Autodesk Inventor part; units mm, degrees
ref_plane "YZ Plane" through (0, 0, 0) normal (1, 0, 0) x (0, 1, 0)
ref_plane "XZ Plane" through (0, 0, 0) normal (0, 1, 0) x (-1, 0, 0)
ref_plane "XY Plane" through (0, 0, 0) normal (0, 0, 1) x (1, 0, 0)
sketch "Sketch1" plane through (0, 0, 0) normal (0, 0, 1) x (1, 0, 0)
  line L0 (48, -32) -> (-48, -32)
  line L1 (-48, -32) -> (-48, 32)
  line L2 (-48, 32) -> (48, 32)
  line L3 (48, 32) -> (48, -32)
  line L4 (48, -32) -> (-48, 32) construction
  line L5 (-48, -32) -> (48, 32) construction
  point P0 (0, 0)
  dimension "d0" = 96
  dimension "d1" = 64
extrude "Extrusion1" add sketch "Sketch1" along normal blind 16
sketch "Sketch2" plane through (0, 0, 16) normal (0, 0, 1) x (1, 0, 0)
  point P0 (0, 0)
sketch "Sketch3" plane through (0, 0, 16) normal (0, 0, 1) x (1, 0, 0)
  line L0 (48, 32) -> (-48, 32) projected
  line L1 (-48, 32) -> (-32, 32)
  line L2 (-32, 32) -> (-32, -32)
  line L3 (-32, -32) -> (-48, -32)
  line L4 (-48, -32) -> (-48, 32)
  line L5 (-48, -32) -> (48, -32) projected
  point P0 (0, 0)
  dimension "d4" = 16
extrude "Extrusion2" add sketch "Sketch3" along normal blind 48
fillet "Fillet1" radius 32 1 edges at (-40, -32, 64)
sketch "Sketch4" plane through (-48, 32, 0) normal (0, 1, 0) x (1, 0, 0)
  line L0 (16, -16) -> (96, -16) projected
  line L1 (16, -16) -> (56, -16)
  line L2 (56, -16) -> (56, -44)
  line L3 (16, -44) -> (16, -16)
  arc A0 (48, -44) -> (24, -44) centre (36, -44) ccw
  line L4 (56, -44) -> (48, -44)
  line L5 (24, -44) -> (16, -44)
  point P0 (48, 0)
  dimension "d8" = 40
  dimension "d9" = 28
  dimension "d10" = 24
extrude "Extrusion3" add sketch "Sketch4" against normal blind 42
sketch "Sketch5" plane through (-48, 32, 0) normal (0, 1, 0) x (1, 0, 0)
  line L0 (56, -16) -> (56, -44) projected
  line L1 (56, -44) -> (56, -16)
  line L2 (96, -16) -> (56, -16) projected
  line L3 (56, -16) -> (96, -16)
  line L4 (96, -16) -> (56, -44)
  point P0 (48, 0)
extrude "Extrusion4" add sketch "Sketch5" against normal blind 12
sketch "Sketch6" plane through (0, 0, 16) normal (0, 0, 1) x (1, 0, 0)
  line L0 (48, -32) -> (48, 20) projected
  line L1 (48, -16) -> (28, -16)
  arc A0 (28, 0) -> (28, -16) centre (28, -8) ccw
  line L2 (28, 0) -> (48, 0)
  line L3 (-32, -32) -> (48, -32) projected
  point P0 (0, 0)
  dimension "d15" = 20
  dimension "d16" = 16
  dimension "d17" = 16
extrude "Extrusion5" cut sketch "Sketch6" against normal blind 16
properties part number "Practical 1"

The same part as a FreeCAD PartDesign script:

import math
import FreeCAD as App
import Part
import Sketcher
from FreeCAD import Vector
Q = App.Units.Quantity


def edges_at(feature, points):
    """Names of the edges that pass closest to the given points."""
    edges = feature.Shape.Edges
    near = lambda p: min(range(len(edges)), key=lambda i: edges[i].distToShape(Part.Vertex(*p))[0])
    return sorted({f"Edge{near(p) + 1}" for p in points})


def add_polygon(sketch, points):
    """Adds a closed chain of lines whose ends are joined by coincident constraints."""
    first, n = sketch.GeometryCount, len(points)
    for a, b in zip(points, points[1:] + points[:1]):
        sketch.addGeometry(Part.LineSegment(App.Vector(*a, 0), App.Vector(*b, 0)), False)
    for i in range(n):
        sketch.addConstraint(Sketcher.Constraint("Coincident", first + i, 2, first + (i + 1) % n, 1))

doc = App.newDocument("Part")
body = doc.addObject("PartDesign::Body", "Body")

# Sketch on XY plane
sketch1 = body.newObject("Sketcher::SketchObject", "Sketch")
sketch1.AttachmentSupport = (doc.getObject("XY_Plane"), [""])
sketch1.MapMode = "FlatFace"
add_polygon(sketch1, [(-48, -32), (48, -32), (48, 32), (-48, 32)])  # lines 0-3
sketch1.addConstraint(Sketcher.Constraint("Horizontal", 0))
sketch1.addConstraint(Sketcher.Constraint("Vertical", 1))
sketch1.addConstraint(Sketcher.Constraint("Horizontal", 2))
sketch1.addConstraint(Sketcher.Constraint("Vertical", 3))
sketch1.addConstraint(Sketcher.Constraint("Symmetric", 0, 2, 2, 2, -1, 1))
sketch1.addConstraint(Sketcher.Constraint("DistanceX", 0, 1, 0, 2, Q("96 mm")))
sketch1.addConstraint(Sketcher.Constraint("DistanceY", 1, 1, 1, 2, Q("64 mm")))
pad1 = body.newObject("PartDesign::Pad", "Pad")
pad1.Profile = sketch1
pad1.Length = 16

# Sketch on XY plane
sketch2 = body.newObject("Sketcher::SketchObject", "Sketch001")
sketch2.AttachmentSupport = (doc.getObject("XY_Plane"), [""])
sketch2.MapMode = "FlatFace"
sketch2.AttachmentOffset = App.Placement(Vector(0, 0, 16), App.Rotation())
add_polygon(sketch2, [(-32, -32), (-32, 32), (-48, 32), (-48, -32)])  # lines 0-3
sketch2.addConstraint(Sketcher.Constraint("Vertical", 0))
sketch2.addConstraint(Sketcher.Constraint("Horizontal", 1))
sketch2.addConstraint(Sketcher.Constraint("Vertical", 2))
sketch2.addConstraint(Sketcher.Constraint("Horizontal", 3))
sketch2.addConstraint(Sketcher.Constraint("DistanceX", 1, 2, 1, 1, Q("16 mm")))
sketch2.addConstraint(Sketcher.Constraint("DistanceY", 0, 1, 0, 2, Q("64 mm")))
sketch2.addConstraint(Sketcher.Constraint("DistanceX", 0, 2, -1, 1, Q("32 mm")))
sketch2.addConstraint(Sketcher.Constraint("DistanceY", -1, 1, 0, 2, Q("32 mm")))
pad2 = body.newObject("PartDesign::Pad", "Pad001")
pad2.Profile = sketch2
pad2.Length = 48
doc.recompute()

fillet = body.newObject("PartDesign::Fillet", "Fillet")
fillet.Base = (pad2, edges_at(pad2, [(-40, -32, 64)]))
fillet.Radius = 32

# Sketch on XZ plane
sketch3 = body.newObject("Sketcher::SketchObject", "Sketch002")
sketch3.AttachmentSupport = (doc.getObject("XZ_Plane"), [""])
sketch3.MapMode = "FlatFace"
sketch3.AttachmentOffset = App.Placement(Vector(0, 0, -32), App.Rotation())
sketch3.addGeometry(Part.LineSegment(Vector(8, 16, 0), Vector(-32, 16, 0)), False)
sketch3.addGeometry(Part.LineSegment(Vector(-32, 16, 0), Vector(-32, 44, 0)), False)
sketch3.addGeometry(Part.LineSegment(Vector(-32, 44, 0), Vector(-24, 44, 0)), False)
sketch3.addGeometry(Part.ArcOfCircle(Part.Circle(Vector(-12, 44, 0), Vector(0, 0, 1), 12), math.radians(180), math.radians(360)), False)
sketch3.addGeometry(Part.LineSegment(Vector(0, 44, 0), Vector(8, 44, 0)), False)
sketch3.addGeometry(Part.LineSegment(Vector(8, 44, 0), Vector(8, 16, 0)), False)
sketch3.addConstraint(Sketcher.Constraint("Coincident", 0, 2, 1, 1))
sketch3.addConstraint(Sketcher.Constraint("Coincident", 1, 2, 2, 1))
sketch3.addConstraint(Sketcher.Constraint("Coincident", 2, 2, 3, 1))
sketch3.addConstraint(Sketcher.Constraint("Coincident", 3, 2, 4, 1))
sketch3.addConstraint(Sketcher.Constraint("Coincident", 4, 2, 5, 1))
sketch3.addConstraint(Sketcher.Constraint("Coincident", 5, 2, 0, 1))
sketch3.addConstraint(Sketcher.Constraint("Horizontal", 0))
sketch3.addConstraint(Sketcher.Constraint("Vertical", 1))
sketch3.addConstraint(Sketcher.Constraint("Horizontal", 2))
sketch3.addConstraint(Sketcher.Constraint("Horizontal", 4))
sketch3.addConstraint(Sketcher.Constraint("Vertical", 5))
sketch3.addConstraint(Sketcher.Constraint("PointOnObject", 3, 2, -2))
sketch3.addConstraint(Sketcher.Constraint("Horizontal", 3, 3, 1, 2))
sketch3.addConstraint(Sketcher.Constraint("Horizontal", 2, 2, 3, 2))
sketch3.addConstraint(Sketcher.Constraint("Equal", 2, 4))
sketch3.addConstraint(Sketcher.Constraint("Radius", 3, Q("12 mm")))
sketch3.addConstraint(Sketcher.Constraint("DistanceX", 0, 2, 0, 1, Q("40 mm")))
sketch3.addConstraint(Sketcher.Constraint("DistanceY", 1, 1, 1, 2, Q("28 mm")))
sketch3.addConstraint(Sketcher.Constraint("DistanceY", -1, 1, 3, 3, Q("44 mm")))
pad3 = body.newObject("PartDesign::Pad", "Pad002")
pad3.Profile = sketch3
pad3.Length = 42

# Sketch on XZ plane
sketch4 = body.newObject("Sketcher::SketchObject", "Sketch003")
sketch4.AttachmentSupport = (doc.getObject("XZ_Plane"), [""])
sketch4.MapMode = "FlatFace"
sketch4.AttachmentOffset = App.Placement(Vector(0, 0, -32), App.Rotation())
add_polygon(sketch4, [(48, 16), (8, 16), (8, 44)])  # lines 0-2
sketch4.addConstraint(Sketcher.Constraint("Horizontal", 0))
sketch4.addConstraint(Sketcher.Constraint("Vertical", 1))
sketch4.addConstraint(Sketcher.Constraint("DistanceX", 0, 2, 0, 1, Q("40 mm")))
sketch4.addConstraint(Sketcher.Constraint("DistanceY", 1, 1, 1, 2, Q("28 mm")))
sketch4.addConstraint(Sketcher.Constraint("DistanceX", -1, 1, 0, 2, Q("8 mm")))
sketch4.addConstraint(Sketcher.Constraint("DistanceY", -1, 1, 0, 2, Q("16 mm")))
pad4 = body.newObject("PartDesign::Pad", "Pad003")
pad4.Profile = sketch4
pad4.Length = 12

# Sketch on XY plane
sketch5 = body.newObject("Sketcher::SketchObject", "Sketch004")
sketch5.AttachmentSupport = (doc.getObject("XY_Plane"), [""])
sketch5.MapMode = "FlatFace"
sketch5.AttachmentOffset = App.Placement(Vector(0, 0, 16), App.Rotation())
sketch5.addGeometry(Part.LineSegment(Vector(28, -16, 0), Vector(48, -16, 0)), False)
sketch5.addGeometry(Part.LineSegment(Vector(48, -16, 0), Vector(48, 0, 0)), False)
sketch5.addGeometry(Part.LineSegment(Vector(48, 0, 0), Vector(28, 0, 0)), False)
sketch5.addGeometry(Part.ArcOfCircle(Part.Circle(Vector(28, -8, 0), Vector(0, 0, 1), 8), math.radians(90), math.radians(270)), False)
sketch5.addConstraint(Sketcher.Constraint("Coincident", 0, 2, 1, 1))
sketch5.addConstraint(Sketcher.Constraint("Coincident", 1, 2, 2, 1))
sketch5.addConstraint(Sketcher.Constraint("Tangent", 2, 2, 3, 1))
sketch5.addConstraint(Sketcher.Constraint("Tangent", 3, 2, 0, 1))
sketch5.addConstraint(Sketcher.Constraint("Horizontal", 0))
sketch5.addConstraint(Sketcher.Constraint("Vertical", 1))
sketch5.addConstraint(Sketcher.Constraint("Horizontal", 2))
sketch5.addConstraint(Sketcher.Constraint("PointOnObject", 1, 2, -1))
sketch5.addConstraint(Sketcher.Constraint("Radius", 3, Q("8 mm")))
sketch5.addConstraint(Sketcher.Constraint("DistanceX", 0, 1, 0, 2, Q("20 mm")))
sketch5.addConstraint(Sketcher.Constraint("DistanceX", -1, 1, 3, 3, Q("28 mm")))
pocket1 = body.newObject("PartDesign::Pocket", "Pocket")
pocket1.Profile = sketch5
pocket1.Length = 16

doc.recompute()
